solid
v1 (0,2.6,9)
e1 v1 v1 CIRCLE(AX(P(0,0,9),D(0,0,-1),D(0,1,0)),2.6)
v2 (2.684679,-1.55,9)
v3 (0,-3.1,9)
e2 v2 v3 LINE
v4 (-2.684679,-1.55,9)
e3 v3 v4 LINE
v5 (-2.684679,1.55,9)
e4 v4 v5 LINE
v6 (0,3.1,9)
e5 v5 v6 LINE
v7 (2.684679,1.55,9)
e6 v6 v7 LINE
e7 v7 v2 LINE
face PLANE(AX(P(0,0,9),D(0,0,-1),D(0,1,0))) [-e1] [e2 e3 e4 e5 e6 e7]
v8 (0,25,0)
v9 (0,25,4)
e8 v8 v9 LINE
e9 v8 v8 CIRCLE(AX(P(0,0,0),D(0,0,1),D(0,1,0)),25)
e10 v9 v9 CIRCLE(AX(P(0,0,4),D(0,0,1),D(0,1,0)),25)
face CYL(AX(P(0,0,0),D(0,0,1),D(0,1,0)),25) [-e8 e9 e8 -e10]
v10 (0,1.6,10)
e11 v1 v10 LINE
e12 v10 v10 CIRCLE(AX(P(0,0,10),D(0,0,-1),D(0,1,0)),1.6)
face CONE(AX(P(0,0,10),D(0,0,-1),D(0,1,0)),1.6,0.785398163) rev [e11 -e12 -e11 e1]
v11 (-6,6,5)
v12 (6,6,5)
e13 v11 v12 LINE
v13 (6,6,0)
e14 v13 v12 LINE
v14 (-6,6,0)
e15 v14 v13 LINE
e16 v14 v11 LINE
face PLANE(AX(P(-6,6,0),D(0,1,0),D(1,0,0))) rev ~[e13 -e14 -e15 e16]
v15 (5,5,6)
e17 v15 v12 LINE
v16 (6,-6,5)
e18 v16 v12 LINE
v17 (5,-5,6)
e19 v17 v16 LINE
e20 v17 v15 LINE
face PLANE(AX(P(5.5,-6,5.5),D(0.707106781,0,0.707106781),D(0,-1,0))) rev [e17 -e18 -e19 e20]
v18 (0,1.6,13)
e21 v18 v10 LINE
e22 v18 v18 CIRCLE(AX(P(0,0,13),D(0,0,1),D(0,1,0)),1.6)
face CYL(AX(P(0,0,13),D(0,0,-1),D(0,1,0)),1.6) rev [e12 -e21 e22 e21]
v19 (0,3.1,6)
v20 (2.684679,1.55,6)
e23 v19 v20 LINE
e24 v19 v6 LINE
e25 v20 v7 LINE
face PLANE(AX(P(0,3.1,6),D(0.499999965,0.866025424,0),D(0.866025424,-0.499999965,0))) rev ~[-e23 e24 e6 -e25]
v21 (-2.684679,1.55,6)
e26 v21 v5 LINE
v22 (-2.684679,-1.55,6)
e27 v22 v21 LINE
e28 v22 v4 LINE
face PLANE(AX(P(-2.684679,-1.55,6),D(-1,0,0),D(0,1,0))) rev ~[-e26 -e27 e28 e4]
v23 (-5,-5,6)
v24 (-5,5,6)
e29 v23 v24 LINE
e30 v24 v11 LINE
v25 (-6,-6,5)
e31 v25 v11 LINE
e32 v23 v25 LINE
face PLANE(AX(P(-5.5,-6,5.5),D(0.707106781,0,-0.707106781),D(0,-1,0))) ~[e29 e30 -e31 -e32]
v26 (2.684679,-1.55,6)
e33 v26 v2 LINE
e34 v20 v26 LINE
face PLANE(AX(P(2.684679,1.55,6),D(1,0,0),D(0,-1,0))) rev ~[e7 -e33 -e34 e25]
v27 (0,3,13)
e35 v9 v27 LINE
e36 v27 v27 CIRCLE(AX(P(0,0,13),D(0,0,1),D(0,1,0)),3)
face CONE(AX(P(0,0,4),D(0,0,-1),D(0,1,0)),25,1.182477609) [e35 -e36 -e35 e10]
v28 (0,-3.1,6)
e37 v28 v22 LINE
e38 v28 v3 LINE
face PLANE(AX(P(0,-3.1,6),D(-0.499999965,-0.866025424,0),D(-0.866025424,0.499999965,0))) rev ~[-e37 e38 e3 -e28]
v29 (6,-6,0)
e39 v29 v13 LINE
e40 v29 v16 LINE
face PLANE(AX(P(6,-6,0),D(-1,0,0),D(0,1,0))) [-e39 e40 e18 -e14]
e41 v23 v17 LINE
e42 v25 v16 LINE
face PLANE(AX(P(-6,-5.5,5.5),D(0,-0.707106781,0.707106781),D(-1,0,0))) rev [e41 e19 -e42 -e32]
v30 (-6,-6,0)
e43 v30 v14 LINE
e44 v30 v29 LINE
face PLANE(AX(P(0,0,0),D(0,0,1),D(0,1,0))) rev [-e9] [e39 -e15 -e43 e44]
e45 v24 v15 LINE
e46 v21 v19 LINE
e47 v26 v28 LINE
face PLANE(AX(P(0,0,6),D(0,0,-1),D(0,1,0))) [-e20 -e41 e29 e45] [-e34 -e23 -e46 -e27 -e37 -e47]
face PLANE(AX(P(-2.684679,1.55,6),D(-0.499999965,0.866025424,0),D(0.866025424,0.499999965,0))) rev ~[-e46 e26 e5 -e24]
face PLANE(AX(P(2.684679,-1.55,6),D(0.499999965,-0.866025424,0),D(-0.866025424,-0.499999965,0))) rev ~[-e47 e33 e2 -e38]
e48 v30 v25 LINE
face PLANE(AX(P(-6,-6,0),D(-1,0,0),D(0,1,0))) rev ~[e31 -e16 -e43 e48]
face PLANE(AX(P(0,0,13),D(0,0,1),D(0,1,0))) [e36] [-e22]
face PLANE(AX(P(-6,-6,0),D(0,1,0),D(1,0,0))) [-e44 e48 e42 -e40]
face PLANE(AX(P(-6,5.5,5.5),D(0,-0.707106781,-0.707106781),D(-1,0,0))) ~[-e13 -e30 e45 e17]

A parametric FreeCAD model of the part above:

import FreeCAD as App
import Part
import Sketcher
Q = App.Units.Quantity


def edges_at(feature, points):
    """Names of the edges that pass closest to the given points."""
    edges = feature.Shape.Edges
    near = lambda p: min(range(len(edges)), key=lambda i: edges[i].distToShape(Part.Vertex(*p))[0])
    return sorted({f"Edge{near(p) + 1}" for p in points})

doc = App.newDocument("Part")
params = doc.addObject("Spreadsheet::Sheet", "Params")
for row, (alias, value) in enumerate([
    ("sketch1_height", "13 mm"),
    ("sketch1_height2", "4 mm"),
    ("sketch1_width", "23.4 mm"),
    ("sketch1_width2", "1.4 mm"),
    ("revolution_angle", "360 deg"),
    ("sketch2_width", "12 mm"),
    ("pocket1_length", "6 mm"),
    ("sketch3_height", "3.1 mm"),
    ("sketch3_length", "3.1 mm"),
    ("pocket2_length", "3 mm"),
    ("chamfer_size", "1 mm"),
    ("chamfer2_size", "1 mm"),
], start=1):
    params.set(f"A{row}", alias)
    params.set(f"B{row}", "=" + value)
    params.setAlias(f"B{row}", alias)

body = doc.addObject("PartDesign::Body", "Body")

# Sketch on YZ plane
sketch1 = doc.addObject("Sketcher::SketchObject", "Sketch")
body.addObject(sketch1)
sketch1.AttachmentSupport = (doc.YZ_Plane, [""])
sketch1.MapMode = "FlatFace"
sketch1.addGeometry(Part.LineSegment(App.Vector(1.6, 13, 0), App.Vector(1.6, 0, 0)), False)
sketch1.addGeometry(Part.LineSegment(App.Vector(1.6, 0, 0), App.Vector(25, 0, 0)), False)
sketch1.addGeometry(Part.LineSegment(App.Vector(25, 0, 0), App.Vector(25, 4, 0)), False)
sketch1.addGeometry(Part.LineSegment(App.Vector(25, 4, 0), App.Vector(3, 13, 0)), False)
sketch1.addGeometry(Part.LineSegment(App.Vector(3, 13, 0), App.Vector(1.6, 13, 0)), False)
sketch1.addConstraint(Sketcher.Constraint("Coincident", 0, 2, 1, 1))
sketch1.addConstraint(Sketcher.Constraint("Coincident", 1, 2, 2, 1))
sketch1.addConstraint(Sketcher.Constraint("Coincident", 2, 2, 3, 1))
sketch1.addConstraint(Sketcher.Constraint("Coincident", 3, 2, 4, 1))
sketch1.addConstraint(Sketcher.Constraint("Coincident", 4, 2, 0, 1))
sketch1.addConstraint(Sketcher.Constraint("Vertical", 0))
sketch1.addConstraint(Sketcher.Constraint("Horizontal", 1))
sketch1.addConstraint(Sketcher.Constraint("Vertical", 2))
sketch1.addConstraint(Sketcher.Constraint("Horizontal", 4))
sketch1.addConstraint(Sketcher.Constraint("PointOnObject", 0, 2, -1))
sketch1.addConstraint(Sketcher.Constraint("DistanceY", 0, 2, 0, 1, Q("13 mm")))
sketch1.addConstraint(Sketcher.Constraint("DistanceY", 2, 1, 2, 2, Q("4 mm")))
sketch1.addConstraint(Sketcher.Constraint("DistanceX", 1, 1, 1, 2, Q("23.4 mm")))
sketch1.addConstraint(Sketcher.Constraint("DistanceX", 4, 2, 4, 1, Q("1.4 mm")))
sketch1.addConstraint(Sketcher.Constraint("DistanceX", -1, 1, 1, 2, Q("25 mm")))
sketch1.setExpression("Constraints[10]", "Params.sketch1_height")
sketch1.setExpression("Constraints[11]", "Params.sketch1_height2")
sketch1.setExpression("Constraints[12]", "Params.sketch1_width")
sketch1.setExpression("Constraints[13]", "Params.sketch1_width2")
revolution = doc.addObject("PartDesign::Revolution", "Revolution")
body.addObject(revolution)
revolution.Profile = sketch1
revolution.ReferenceAxis = (sketch1, ["V_Axis"])
revolution.setExpression("Angle", "Params.revolution_angle")

# Sketch on XY plane
sketch2 = doc.addObject("Sketcher::SketchObject", "Sketch001")
body.addObject(sketch2)
sketch2.AttachmentSupport = (doc.XY_Plane, [""])
sketch2.MapMode = "FlatFace"
sketch2.addGeometry(Part.LineSegment(App.Vector(6, -6, 0), App.Vector(-6, -6, 0)), False)
sketch2.addGeometry(Part.LineSegment(App.Vector(-6, -6, 0), App.Vector(-6, 6, 0)), False)
sketch2.addGeometry(Part.LineSegment(App.Vector(-6, 6, 0), App.Vector(6, 6, 0)), False)
sketch2.addGeometry(Part.LineSegment(App.Vector(6, 6, 0), App.Vector(6, -6, 0)), False)
sketch2.addConstraint(Sketcher.Constraint("Coincident", 0, 2, 1, 1))
sketch2.addConstraint(Sketcher.Constraint("Coincident", 1, 2, 2, 1))
sketch2.addConstraint(Sketcher.Constraint("Coincident", 2, 2, 3, 1))
sketch2.addConstraint(Sketcher.Constraint("Coincident", 3, 2, 0, 1))
sketch2.addConstraint(Sketcher.Constraint("Horizontal", 0))
sketch2.addConstraint(Sketcher.Constraint("Vertical", 1))
sketch2.addConstraint(Sketcher.Constraint("Horizontal", 2))
sketch2.addConstraint(Sketcher.Constraint("Vertical", 3))
sketch2.addConstraint(Sketcher.Constraint("Symmetric", 0, 2, 2, 2, -1, 1))
sketch2.addConstraint(Sketcher.Constraint("Equal", 2, 1))
sketch2.addConstraint(Sketcher.Constraint("DistanceX", 0, 2, 0, 1, Q("12 mm")))
sketch2.setExpression("Constraints[10]", "Params.sketch2_width")
pocket1 = doc.addObject("PartDesign::Pocket", "Pocket")
body.addObject(pocket1)
pocket1.Profile = sketch2
pocket1.setExpression("Length", "Params.pocket1_length")
pocket1.Reversed = True

# Sketch on XY plane
sketch3 = doc.addObject("Sketcher::SketchObject", "Sketch002")
body.addObject(sketch3)
sketch3.AttachmentSupport = (doc.XY_Plane, [""])
sketch3.MapMode = "FlatFace"
sketch3.AttachmentOffset = App.Placement(App.Vector(0, 0, 6), App.Rotation())
sketch3.addGeometry(Part.LineSegment(App.Vector(0, 3.1, 0), App.Vector(2.7, 1.6, 0)), False)
sketch3.addGeometry(Part.LineSegment(App.Vector(2.7, 1.6, 0), App.Vector(2.7, -1.6, 0)), False)
sketch3.addGeometry(Part.LineSegment(App.Vector(2.7, -1.6, 0), App.Vector(0, -3.1, 0)), False)
sketch3.addGeometry(Part.LineSegment(App.Vector(0, -3.1, 0), App.Vector(-2.7, -1.6, 0)), False)
sketch3.addGeometry(Part.LineSegment(App.Vector(-2.7, -1.6, 0), App.Vector(-2.7, 1.6, 0)), False)
sketch3.addGeometry(Part.LineSegment(App.Vector(-2.7, 1.6, 0), App.Vector(0, 3.1, 0)), False)
sketch3.addConstraint(Sketcher.Constraint("Coincident", 0, 2, 1, 1))
sketch3.addConstraint(Sketcher.Constraint("Coincident", 1, 2, 2, 1))
sketch3.addConstraint(Sketcher.Constraint("Coincident", 2, 2, 3, 1))
sketch3.addConstraint(Sketcher.Constraint("Coincident", 3, 2, 4, 1))
sketch3.addConstraint(Sketcher.Constraint("Coincident", 4, 2, 5, 1))
sketch3.addConstraint(Sketcher.Constraint("Coincident", 5, 2, 0, 1))
sketch3.addConstraint(Sketcher.Constraint("Vertical", 1))
sketch3.addConstraint(Sketcher.Constraint("Vertical", 4))
sketch3.addConstraint(Sketcher.Constraint("Symmetric", 0, 2, 3, 2, -1, 1))
sketch3.addConstraint(Sketcher.Constraint("Symmetric", 2, 2, 5, 2, -1, 1))
sketch3.addConstraint(Sketcher.Constraint("PointOnObject", 2, 2, -2))
sketch3.addConstraint(Sketcher.Constraint("Parallel", 2, 5))
sketch3.addConstraint(Sketcher.Constraint("Horizontal", 1, 2, 3, 2))
sketch3.addConstraint(Sketcher.Constraint("Angle", 0, Q("-29.999998 deg")))
sketch3.addConstraint(Sketcher.Constraint("DistanceY", 1, 2, 1, 1, Q("3.1 mm")))
sketch3.addConstraint(Sketcher.Constraint("Distance", 0, Q("3.1 mm")))
sketch3.setExpression("Constraints[14]", "Params.sketch3_height")
sketch3.setExpression("Constraints[15]", "Params.sketch3_length")
pocket2 = doc.addObject("PartDesign::Pocket", "Pocket001")
body.addObject(pocket2)
pocket2.Profile = sketch3
pocket2.setExpression("Length", "Params.pocket2_length")
pocket2.Reversed = True
doc.recompute()

chamfer = doc.addObject("PartDesign::Chamfer", "Chamfer")
body.addObject(chamfer)
chamfer.Base = (pocket2, edges_at(pocket2, [
    (0, -6, 6),
    (0, 6, 6),
    (-6, 0, 6),
    (6, 0, 6),
]))
chamfer.setExpression("Size", "Params.chamfer_size")
doc.recompute()

chamfer2 = doc.addObject("PartDesign::Chamfer", "Chamfer001")
body.addObject(chamfer2)
chamfer2.Base = (chamfer, edges_at(chamfer, [(0, -1.6, 9)]))
chamfer2.setExpression("Size", "Params.chamfer2_size")

doc.recompute()
